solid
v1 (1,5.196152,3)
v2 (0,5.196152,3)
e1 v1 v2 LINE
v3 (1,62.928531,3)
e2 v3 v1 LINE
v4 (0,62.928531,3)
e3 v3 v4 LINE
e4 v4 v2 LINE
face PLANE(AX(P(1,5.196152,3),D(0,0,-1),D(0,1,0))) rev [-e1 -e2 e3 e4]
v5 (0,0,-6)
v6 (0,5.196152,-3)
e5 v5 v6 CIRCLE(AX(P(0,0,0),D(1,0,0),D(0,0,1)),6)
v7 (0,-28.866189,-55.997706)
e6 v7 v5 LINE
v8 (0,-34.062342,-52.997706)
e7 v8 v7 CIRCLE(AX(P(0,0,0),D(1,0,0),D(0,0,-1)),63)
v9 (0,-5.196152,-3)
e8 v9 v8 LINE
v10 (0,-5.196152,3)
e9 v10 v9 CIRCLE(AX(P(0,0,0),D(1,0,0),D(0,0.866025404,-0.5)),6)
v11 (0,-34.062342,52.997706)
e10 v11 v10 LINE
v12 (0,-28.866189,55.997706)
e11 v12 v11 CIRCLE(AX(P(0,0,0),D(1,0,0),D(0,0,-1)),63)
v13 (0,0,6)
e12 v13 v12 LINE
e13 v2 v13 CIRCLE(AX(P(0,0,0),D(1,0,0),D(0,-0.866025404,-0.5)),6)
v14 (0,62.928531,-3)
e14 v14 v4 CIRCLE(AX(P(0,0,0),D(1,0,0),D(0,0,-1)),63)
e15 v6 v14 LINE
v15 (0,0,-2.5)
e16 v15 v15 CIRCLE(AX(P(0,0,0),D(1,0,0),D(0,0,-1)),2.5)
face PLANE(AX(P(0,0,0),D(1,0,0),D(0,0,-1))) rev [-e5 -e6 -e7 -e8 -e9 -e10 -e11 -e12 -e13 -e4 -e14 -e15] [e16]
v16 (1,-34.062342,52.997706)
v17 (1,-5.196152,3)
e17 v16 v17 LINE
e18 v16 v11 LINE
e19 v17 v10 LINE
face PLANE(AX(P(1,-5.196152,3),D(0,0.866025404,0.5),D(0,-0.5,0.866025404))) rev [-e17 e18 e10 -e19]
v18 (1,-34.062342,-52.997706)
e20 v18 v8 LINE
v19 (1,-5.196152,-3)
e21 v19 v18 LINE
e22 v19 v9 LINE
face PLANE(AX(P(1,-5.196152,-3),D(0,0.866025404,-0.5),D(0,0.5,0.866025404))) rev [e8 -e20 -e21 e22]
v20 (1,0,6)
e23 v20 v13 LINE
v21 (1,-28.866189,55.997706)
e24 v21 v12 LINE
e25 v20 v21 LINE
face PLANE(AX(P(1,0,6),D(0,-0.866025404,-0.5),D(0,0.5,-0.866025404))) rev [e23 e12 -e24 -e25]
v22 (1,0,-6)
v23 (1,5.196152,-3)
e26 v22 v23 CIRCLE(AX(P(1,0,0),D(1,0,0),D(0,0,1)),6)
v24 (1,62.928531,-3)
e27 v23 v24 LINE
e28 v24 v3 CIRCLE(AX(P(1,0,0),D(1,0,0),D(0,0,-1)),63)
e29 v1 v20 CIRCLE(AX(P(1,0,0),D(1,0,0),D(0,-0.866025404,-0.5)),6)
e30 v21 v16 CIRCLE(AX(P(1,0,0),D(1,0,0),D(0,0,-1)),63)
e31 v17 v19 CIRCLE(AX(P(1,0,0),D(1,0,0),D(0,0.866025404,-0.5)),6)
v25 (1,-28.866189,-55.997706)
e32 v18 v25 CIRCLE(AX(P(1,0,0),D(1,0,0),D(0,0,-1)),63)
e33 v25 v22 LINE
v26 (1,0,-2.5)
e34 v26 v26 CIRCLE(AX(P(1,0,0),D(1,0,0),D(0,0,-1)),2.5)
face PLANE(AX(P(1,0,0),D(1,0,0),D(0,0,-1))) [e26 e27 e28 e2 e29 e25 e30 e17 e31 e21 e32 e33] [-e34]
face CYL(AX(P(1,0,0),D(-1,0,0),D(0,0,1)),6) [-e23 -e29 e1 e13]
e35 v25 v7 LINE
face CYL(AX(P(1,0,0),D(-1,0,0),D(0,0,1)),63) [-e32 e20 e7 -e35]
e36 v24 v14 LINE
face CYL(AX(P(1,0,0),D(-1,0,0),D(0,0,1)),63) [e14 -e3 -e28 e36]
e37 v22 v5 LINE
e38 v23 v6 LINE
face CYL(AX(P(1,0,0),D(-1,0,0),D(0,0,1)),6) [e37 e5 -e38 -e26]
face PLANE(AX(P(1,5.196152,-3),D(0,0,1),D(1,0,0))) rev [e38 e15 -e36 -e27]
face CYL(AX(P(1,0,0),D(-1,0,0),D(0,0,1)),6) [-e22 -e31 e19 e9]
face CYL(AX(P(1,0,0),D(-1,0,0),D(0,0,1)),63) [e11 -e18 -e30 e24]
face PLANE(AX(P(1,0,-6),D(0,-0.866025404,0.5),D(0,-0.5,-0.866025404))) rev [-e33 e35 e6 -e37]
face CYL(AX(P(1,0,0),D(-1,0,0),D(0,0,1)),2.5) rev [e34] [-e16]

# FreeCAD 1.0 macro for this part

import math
import FreeCAD as App
import Part
import Sketcher

V = App.Vector
Q = App.Units.Quantity

doc = App.newDocument("Part")
params = doc.addObject("Spreadsheet::Sheet", "Params")
for row, (alias, value) in enumerate([
    ("sketch1_diameter", "126 mm"),
    ("sketch1_diameter2", "5 mm"),
    ("pad1_length", "1 mm"),
    ("sketch2_radius", "63 mm"),
    ("sketch2_radius2", "6 mm"),
    ("pocket1_length", "1 mm"),
], start=1):
    params.set(f"A{row}", alias)
    params.set(f"B{row}", "=" + value)
    params.setAlias(f"B{row}", alias)

body = doc.addObject("PartDesign::Body", "Body")

sketch1 = body.newObject("Sketcher::SketchObject", "Sketch")
sketch1.AttachmentSupport = (doc.getObject("YZ_Plane"), [""])
sketch1.MapMode = "FlatFace"
sketch1.addGeometry([
    Part.Circle(V(0, 0, 0), V(0, 0, 1), 63),
    Part.Circle(V(0, 0, 0), V(0, 0, 1), 2.5),
], False)
sketch1.addConstraint([
    Sketcher.Constraint("Coincident", 0, 3, -1, 1),
    Sketcher.Constraint("Coincident", 1, 3, -1, 1),
    Sketcher.Constraint("Diameter", 0, Q("126 mm")),
    Sketcher.Constraint("Diameter", 1, Q("5 mm")),
])
sketch1.setExpression("Constraints[2]", "Params.sketch1_diameter")
sketch1.setExpression("Constraints[3]", "Params.sketch1_diameter2")
pad1 = body.newObject("PartDesign::Pad", "Pad")
pad1.Profile = sketch1
pad1.setExpression("Length", "Params.pad1_length")

sketch2 = body.newObject("Sketcher::SketchObject", "Sketch001")
sketch2.AttachmentSupport = (doc.getObject("YZ_Plane"), [""])
sketch2.MapMode = "FlatFace"
sketch2.addGeometry([
    Part.LineSegment(V(5, -3, 0), V(63, -3, 0)),
    Part.ArcOfCircle(Part.Circle(V(0, 0, 0), V(0, 0, 1), 63), math.radians(-117), math.radians(-3)),
    Part.LineSegment(V(-29, -56, 0), V(0, -6, 0)),
    Part.ArcOfCircle(Part.Circle(V(0, 0, 0), V(0, 0, 1), 6), math.radians(-90), math.radians(-30)),
], False)
sketch2.addConstraint([
    Sketcher.Constraint("Coincident", 0, 2, 1, 2),
    Sketcher.Constraint("Coincident", 1, 1, 2, 1),
    Sketcher.Constraint("Coincident", 2, 2, 3, 1),
    Sketcher.Constraint("Coincident", 3, 2, 0, 1),
    Sketcher.Constraint("Horizontal", 0),
    Sketcher.Constraint("Coincident", 1, 3, -1, 1),
    Sketcher.Constraint("Coincident", 3, 3, -1, 1),
    Sketcher.Constraint("PointOnObject", 2, 2, -2),
    Sketcher.Constraint("Radius", 1, Q("63 mm")),
    Sketcher.Constraint("Radius", 3, Q("6 mm")),
    Sketcher.Constraint("Angle", 2, Q("60 deg")),
    Sketcher.Constraint("DistanceY", 0, 2, -1, 1, Q("3 mm")),
])
sketch2.setExpression("Constraints[8]", "Params.sketch2_radius")
sketch2.setExpression("Constraints[9]", "Params.sketch2_radius2")
pocket1 = body.newObject("PartDesign::Pocket", "Pocket")
pocket1.Profile = sketch2
pocket1.setExpression("Length", "Params.pocket1_length")
pocket1.Reversed = True
doc.recompute()

polarpattern = body.newObject("PartDesign::PolarPattern", "PolarPattern")
polarpattern.Originals = [pocket1]
polarpattern.Axis = (doc.getObject("X_Axis"), [""])
polarpattern.Angle = 360
polarpattern.Occurrences = 3
body.Tip = polarpattern

doc.recompute()
